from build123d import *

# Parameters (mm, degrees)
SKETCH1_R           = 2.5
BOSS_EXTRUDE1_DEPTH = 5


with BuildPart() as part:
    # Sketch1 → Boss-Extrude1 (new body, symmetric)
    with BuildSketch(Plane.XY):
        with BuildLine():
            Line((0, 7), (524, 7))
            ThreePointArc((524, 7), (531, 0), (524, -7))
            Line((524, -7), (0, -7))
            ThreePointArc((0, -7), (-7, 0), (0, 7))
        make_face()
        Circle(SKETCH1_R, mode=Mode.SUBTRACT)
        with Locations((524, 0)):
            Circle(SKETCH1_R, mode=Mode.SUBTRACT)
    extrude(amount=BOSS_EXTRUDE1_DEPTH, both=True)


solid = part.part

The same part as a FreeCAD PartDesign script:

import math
import FreeCAD as App
import Part
import Sketcher
from FreeCAD import Vector
Q = App.Units.Quantity

doc = App.newDocument("Part")
body = doc.addObject("PartDesign::Body", "Body")

# Sketch on XY plane
sketch1 = body.newObject("Sketcher::SketchObject", "Sketch")
sketch1.AttachmentSupport = (doc.getObject("XY_Plane"), [""])
sketch1.MapMode = "FlatFace"
sketch1.addGeometry([
    Part.LineSegment(Vector(524, 7, 0), Vector(0, 7, 0)),  # 0
    Part.ArcOfCircle(Part.Circle(Vector(0, 0, 0), Vector(0, 0, 1), 7), math.radians(90), math.radians(270)),  # 1
    Part.LineSegment(Vector(0, -7, 0), Vector(524, -7, 0)),  # 2
    Part.ArcOfCircle(Part.Circle(Vector(524, 0, 0), Vector(0, 0, 1), 7), math.radians(-90), math.radians(90)),  # 3
    Part.Circle(Vector(524, 0, 0), Vector(0, 0, 1), 2.5),  # 4
    Part.Circle(Vector(0, 0, 0), Vector(0, 0, 1), 2.5),  # 5
], False)
sketch1.addConstraint([
    Sketcher.Constraint("Tangent", 0, 2, 1, 1),
    Sketcher.Constraint("Tangent", 1, 2, 2, 1),
    Sketcher.Constraint("Tangent", 2, 2, 3, 1),
    Sketcher.Constraint("Tangent", 3, 2, 0, 1),
    Sketcher.Constraint("Horizontal", 0),
    Sketcher.Constraint("Horizontal", 2),
    Sketcher.Constraint("Coincident", 1, 3, -1, 1),
    Sketcher.Constraint("Coincident", 5, 3, -1, 1),
    Sketcher.Constraint("Coincident", 4, 3, 3, 3),
    Sketcher.Constraint("Equal", 4, 5),
    Sketcher.Constraint("Diameter", 4, Q("5 mm")),
    Sketcher.Constraint("Radius", 1, Q("7 mm")),
    Sketcher.Constraint("DistanceX", 0, 2, 0, 1, Q("524 mm")),
])
pad1 = body.newObject("PartDesign::Pad", "Pad")
pad1.Profile = sketch1
pad1.Length = 10
pad1.Midplane = True

doc.recompute()
